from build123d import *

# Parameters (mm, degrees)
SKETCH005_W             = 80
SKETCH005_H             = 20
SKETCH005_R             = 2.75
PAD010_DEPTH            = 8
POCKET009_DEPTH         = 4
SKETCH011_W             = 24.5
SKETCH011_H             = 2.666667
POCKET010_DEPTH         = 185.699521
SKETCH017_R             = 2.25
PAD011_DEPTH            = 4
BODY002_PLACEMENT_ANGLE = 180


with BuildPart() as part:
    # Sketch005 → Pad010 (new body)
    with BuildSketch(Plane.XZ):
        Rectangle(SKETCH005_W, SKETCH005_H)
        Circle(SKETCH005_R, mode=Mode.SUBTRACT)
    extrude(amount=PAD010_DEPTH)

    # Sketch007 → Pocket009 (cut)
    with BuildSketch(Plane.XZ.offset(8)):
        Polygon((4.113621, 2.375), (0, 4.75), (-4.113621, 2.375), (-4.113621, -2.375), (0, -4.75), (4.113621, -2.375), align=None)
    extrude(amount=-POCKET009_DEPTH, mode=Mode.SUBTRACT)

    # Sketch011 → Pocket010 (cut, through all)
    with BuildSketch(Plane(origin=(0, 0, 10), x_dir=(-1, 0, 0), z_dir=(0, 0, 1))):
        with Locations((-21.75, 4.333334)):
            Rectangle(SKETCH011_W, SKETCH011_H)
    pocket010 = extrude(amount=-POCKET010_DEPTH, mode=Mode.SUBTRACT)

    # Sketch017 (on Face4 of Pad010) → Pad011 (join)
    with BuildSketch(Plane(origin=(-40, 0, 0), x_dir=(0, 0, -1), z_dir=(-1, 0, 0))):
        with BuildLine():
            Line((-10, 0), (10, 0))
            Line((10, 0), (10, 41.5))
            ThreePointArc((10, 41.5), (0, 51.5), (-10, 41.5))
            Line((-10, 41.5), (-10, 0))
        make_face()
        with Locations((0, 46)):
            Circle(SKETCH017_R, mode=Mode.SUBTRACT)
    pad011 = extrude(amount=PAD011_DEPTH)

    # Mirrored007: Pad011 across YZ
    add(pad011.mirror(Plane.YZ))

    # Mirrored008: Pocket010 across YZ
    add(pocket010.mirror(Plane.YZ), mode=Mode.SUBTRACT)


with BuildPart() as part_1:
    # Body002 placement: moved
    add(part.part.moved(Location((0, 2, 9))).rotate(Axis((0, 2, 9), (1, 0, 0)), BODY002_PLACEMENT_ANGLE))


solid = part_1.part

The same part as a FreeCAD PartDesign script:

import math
import FreeCAD as App
import Part
import Sketcher
Q = App.Units.Quantity


def add_polygon(sketch, points):
    """Adds a closed chain of lines whose ends are joined by coincident constraints."""
    first, n = sketch.GeometryCount, len(points)
    for a, b in zip(points, points[1:] + points[:1]):
        sketch.addGeometry(Part.LineSegment(App.Vector(*a, 0), App.Vector(*b, 0)), False)
    for i in range(n):
        sketch.addConstraint(Sketcher.Constraint("Coincident", first + i, 2, first + (i + 1) % n, 1))

doc = App.newDocument("Part")
body = doc.addObject("PartDesign::Body", "Body")

# Sketch on XZ plane
sketch1 = body.newObject("Sketcher::SketchObject", "Sketch")
sketch1.AttachmentSupport = (doc.getObject("XZ_Plane"), [""])
sketch1.MapMode = "FlatFace"
add_polygon(sketch1, [(-40, 10), (-40, -10), (40, -10), (40, 10)])  # lines 0-3
sketch1.addGeometry(Part.Circle(App.Vector(0, 0, 0), App.Vector(0, 0, 1), 2.8), False)  # 4
sketch1.addConstraint([
    Sketcher.Constraint("Vertical", 0),
    Sketcher.Constraint("Horizontal", 1),
    Sketcher.Constraint("Vertical", 2),
    Sketcher.Constraint("Horizontal", 3),
    Sketcher.Constraint("Coincident", 4, 3, -1, 1),
    Sketcher.Constraint("Symmetric", 0, 2, 2, 2, -1, 1),
    Sketcher.Constraint("Diameter", 4, 5.5),
    Sketcher.Constraint("DistanceX", 1, 1, 1, 2, 80.0),
    Sketcher.Constraint("DistanceY", 0, 2, 0, 1, 20.0),
])
pad1 = body.newObject("PartDesign::Pad", "Pad")
pad1.Profile = sketch1
pad1.Length = 8

# Sketch on XZ plane
sketch2 = body.newObject("Sketcher::SketchObject", "Sketch001")
sketch2.AttachmentSupport = (doc.getObject("XZ_Plane"), [""])
sketch2.MapMode = "FlatFace"
sketch2.AttachmentOffset = App.Placement(App.Vector(0, 0, 8), App.Rotation())
add_polygon(sketch2, [(4.1, 2.4), (0, 4.8), (-4.1, 2.4), (-4.1, -2.4), (0, -4.8), (4.1, -2.4)])  # lines 0-5
sketch2.addConstraint([
    Sketcher.Constraint("Vertical", 2),
    Sketcher.Constraint("Vertical", 5),
    Sketcher.Constraint("Symmetric", 0, 2, 3, 2, -1, 1),
    Sketcher.Constraint("Symmetric", 1, 2, 4, 2, -1, 1),
    Sketcher.Constraint("PointOnObject", 0, 2, -2),
    Sketcher.Constraint("Parallel", 0, 3),
    Sketcher.Constraint("Horizontal", 2, 2, 4, 2),
    Sketcher.Constraint("Angle", 0, Q("150.000002 deg")),
    Sketcher.Constraint("DistanceY", 2, 2, 2, 1, 4.75),
    Sketcher.Constraint("DistanceY", 3, 2, 0, 2, 9.5),
])
pocket1 = body.newObject("PartDesign::Pocket", "Pocket")
pocket1.Profile = sketch2
pocket1.Length = 4

# Sketch on XY plane
sketch3 = body.newObject("Sketcher::SketchObject", "Sketch002")
sketch3.AttachmentSupport = (doc.getObject("XY_Plane"), [""])
sketch3.MapMode = "FlatFace"
sketch3.AttachmentOffset = App.Placement(App.Vector(0, 0, 10), App.Rotation())
add_polygon(sketch3, [(34, -5.7), (34, -3), (9.5, -3), (9.5, -5.7)])  # lines 0-3
sketch3.addConstraint([
    Sketcher.Constraint("Vertical", 0),
    Sketcher.Constraint("Horizontal", 1),
    Sketcher.Constraint("Vertical", 2),
    Sketcher.Constraint("Horizontal", 3),
    Sketcher.Constraint("DistanceX", 1, 2, 1, 1, 24.5),
    Sketcher.Constraint("DistanceX", -1, 1, 0, 2, 34.0),
    Sketcher.Constraint("DistanceY", 0, 2, -1, 1, 3.000001),
    Sketcher.Constraint("DistanceY", 0, 1, 0, 2, 2.666667),
])
pocket2 = body.newObject("PartDesign::Pocket", "Pocket001")
pocket2.Profile = sketch3
pocket2.Type = "ThroughAll"

# Sketch on YZ plane
sketch4 = body.newObject("Sketcher::SketchObject", "Sketch003")
sketch4.AttachmentSupport = (doc.getObject("YZ_Plane"), [""])
sketch4.MapMode = "FlatFace"
sketch4.AttachmentOffset = App.Placement(App.Vector(0, 0, -40), App.Rotation())
sketch4.addGeometry([
    Part.LineSegment(App.Vector(0, 10, 0), App.Vector(0, -10, 0)),  # 0
    Part.LineSegment(App.Vector(0, -10, 0), App.Vector(-41.5, -10, 0)),  # 1
    Part.ArcOfCircle(Part.Circle(App.Vector(-41.5, 0, 0), App.Vector(0, 0, 1), 10), math.radians(90), math.radians(270)),  # 2
    Part.LineSegment(App.Vector(-41.5, 10, 0), App.Vector(0, 10, 0)),  # 3
    Part.Circle(App.Vector(-46, 0, 0), App.Vector(0, 0, 1), 2.2),  # 4
], False)
sketch4.addConstraint([
    Sketcher.Constraint("Coincident", 0, 2, 1, 1),
    Sketcher.Constraint("Tangent", 1, 2, 2, 2),
    Sketcher.Constraint("Tangent", 2, 1, 3, 1),
    Sketcher.Constraint("Coincident", 3, 2, 0, 1),
    Sketcher.Constraint("Vertical", 0),
    Sketcher.Constraint("Horizontal", 1),
    Sketcher.Constraint("Horizontal", 3),
    Sketcher.Constraint("Symmetric", 0, 2, 3, 2, -1, 1),
    Sketcher.Constraint("PointOnObject", 4, 3, -1),
    Sketcher.Constraint("Radius", 2, 10.0),
    Sketcher.Constraint("Diameter", 4, 4.5),
    Sketcher.Constraint("DistanceX", 1, 2, 1, 1, 41.5),
    Sketcher.Constraint("DistanceX", 4, 3, -1, 1, 46.0),
])
pad2 = body.newObject("PartDesign::Pad", "Pad001")
pad2.Profile = sketch4
pad2.Length = 4
pad2.Reversed = True
doc.recompute()

mirrored = body.newObject("PartDesign::Mirrored", "Mirrored")
mirrored.Originals = [pad2]
mirrored.MirrorPlane = (doc.getObject("YZ_Plane"), [""])
body.Tip = mirrored
doc.recompute()

mirrored2 = body.newObject("PartDesign::Mirrored", "Mirrored001")
mirrored2.Originals = [pocket2]
mirrored2.MirrorPlane = (doc.getObject("YZ_Plane"), [""])
body.Tip = mirrored2
body2 = doc.addObject("PartDesign::Body", "Body001")
doc.recompute()

body.Placement = App.Placement(App.Vector(0, 2, 9), App.Rotation(App.Vector(1, 0, 0), 180))
boolean = body2.newObject("PartDesign::Boolean", "Boolean")
boolean.Type = "Fuse"
boolean.addObjects([body])

doc.recompute()
